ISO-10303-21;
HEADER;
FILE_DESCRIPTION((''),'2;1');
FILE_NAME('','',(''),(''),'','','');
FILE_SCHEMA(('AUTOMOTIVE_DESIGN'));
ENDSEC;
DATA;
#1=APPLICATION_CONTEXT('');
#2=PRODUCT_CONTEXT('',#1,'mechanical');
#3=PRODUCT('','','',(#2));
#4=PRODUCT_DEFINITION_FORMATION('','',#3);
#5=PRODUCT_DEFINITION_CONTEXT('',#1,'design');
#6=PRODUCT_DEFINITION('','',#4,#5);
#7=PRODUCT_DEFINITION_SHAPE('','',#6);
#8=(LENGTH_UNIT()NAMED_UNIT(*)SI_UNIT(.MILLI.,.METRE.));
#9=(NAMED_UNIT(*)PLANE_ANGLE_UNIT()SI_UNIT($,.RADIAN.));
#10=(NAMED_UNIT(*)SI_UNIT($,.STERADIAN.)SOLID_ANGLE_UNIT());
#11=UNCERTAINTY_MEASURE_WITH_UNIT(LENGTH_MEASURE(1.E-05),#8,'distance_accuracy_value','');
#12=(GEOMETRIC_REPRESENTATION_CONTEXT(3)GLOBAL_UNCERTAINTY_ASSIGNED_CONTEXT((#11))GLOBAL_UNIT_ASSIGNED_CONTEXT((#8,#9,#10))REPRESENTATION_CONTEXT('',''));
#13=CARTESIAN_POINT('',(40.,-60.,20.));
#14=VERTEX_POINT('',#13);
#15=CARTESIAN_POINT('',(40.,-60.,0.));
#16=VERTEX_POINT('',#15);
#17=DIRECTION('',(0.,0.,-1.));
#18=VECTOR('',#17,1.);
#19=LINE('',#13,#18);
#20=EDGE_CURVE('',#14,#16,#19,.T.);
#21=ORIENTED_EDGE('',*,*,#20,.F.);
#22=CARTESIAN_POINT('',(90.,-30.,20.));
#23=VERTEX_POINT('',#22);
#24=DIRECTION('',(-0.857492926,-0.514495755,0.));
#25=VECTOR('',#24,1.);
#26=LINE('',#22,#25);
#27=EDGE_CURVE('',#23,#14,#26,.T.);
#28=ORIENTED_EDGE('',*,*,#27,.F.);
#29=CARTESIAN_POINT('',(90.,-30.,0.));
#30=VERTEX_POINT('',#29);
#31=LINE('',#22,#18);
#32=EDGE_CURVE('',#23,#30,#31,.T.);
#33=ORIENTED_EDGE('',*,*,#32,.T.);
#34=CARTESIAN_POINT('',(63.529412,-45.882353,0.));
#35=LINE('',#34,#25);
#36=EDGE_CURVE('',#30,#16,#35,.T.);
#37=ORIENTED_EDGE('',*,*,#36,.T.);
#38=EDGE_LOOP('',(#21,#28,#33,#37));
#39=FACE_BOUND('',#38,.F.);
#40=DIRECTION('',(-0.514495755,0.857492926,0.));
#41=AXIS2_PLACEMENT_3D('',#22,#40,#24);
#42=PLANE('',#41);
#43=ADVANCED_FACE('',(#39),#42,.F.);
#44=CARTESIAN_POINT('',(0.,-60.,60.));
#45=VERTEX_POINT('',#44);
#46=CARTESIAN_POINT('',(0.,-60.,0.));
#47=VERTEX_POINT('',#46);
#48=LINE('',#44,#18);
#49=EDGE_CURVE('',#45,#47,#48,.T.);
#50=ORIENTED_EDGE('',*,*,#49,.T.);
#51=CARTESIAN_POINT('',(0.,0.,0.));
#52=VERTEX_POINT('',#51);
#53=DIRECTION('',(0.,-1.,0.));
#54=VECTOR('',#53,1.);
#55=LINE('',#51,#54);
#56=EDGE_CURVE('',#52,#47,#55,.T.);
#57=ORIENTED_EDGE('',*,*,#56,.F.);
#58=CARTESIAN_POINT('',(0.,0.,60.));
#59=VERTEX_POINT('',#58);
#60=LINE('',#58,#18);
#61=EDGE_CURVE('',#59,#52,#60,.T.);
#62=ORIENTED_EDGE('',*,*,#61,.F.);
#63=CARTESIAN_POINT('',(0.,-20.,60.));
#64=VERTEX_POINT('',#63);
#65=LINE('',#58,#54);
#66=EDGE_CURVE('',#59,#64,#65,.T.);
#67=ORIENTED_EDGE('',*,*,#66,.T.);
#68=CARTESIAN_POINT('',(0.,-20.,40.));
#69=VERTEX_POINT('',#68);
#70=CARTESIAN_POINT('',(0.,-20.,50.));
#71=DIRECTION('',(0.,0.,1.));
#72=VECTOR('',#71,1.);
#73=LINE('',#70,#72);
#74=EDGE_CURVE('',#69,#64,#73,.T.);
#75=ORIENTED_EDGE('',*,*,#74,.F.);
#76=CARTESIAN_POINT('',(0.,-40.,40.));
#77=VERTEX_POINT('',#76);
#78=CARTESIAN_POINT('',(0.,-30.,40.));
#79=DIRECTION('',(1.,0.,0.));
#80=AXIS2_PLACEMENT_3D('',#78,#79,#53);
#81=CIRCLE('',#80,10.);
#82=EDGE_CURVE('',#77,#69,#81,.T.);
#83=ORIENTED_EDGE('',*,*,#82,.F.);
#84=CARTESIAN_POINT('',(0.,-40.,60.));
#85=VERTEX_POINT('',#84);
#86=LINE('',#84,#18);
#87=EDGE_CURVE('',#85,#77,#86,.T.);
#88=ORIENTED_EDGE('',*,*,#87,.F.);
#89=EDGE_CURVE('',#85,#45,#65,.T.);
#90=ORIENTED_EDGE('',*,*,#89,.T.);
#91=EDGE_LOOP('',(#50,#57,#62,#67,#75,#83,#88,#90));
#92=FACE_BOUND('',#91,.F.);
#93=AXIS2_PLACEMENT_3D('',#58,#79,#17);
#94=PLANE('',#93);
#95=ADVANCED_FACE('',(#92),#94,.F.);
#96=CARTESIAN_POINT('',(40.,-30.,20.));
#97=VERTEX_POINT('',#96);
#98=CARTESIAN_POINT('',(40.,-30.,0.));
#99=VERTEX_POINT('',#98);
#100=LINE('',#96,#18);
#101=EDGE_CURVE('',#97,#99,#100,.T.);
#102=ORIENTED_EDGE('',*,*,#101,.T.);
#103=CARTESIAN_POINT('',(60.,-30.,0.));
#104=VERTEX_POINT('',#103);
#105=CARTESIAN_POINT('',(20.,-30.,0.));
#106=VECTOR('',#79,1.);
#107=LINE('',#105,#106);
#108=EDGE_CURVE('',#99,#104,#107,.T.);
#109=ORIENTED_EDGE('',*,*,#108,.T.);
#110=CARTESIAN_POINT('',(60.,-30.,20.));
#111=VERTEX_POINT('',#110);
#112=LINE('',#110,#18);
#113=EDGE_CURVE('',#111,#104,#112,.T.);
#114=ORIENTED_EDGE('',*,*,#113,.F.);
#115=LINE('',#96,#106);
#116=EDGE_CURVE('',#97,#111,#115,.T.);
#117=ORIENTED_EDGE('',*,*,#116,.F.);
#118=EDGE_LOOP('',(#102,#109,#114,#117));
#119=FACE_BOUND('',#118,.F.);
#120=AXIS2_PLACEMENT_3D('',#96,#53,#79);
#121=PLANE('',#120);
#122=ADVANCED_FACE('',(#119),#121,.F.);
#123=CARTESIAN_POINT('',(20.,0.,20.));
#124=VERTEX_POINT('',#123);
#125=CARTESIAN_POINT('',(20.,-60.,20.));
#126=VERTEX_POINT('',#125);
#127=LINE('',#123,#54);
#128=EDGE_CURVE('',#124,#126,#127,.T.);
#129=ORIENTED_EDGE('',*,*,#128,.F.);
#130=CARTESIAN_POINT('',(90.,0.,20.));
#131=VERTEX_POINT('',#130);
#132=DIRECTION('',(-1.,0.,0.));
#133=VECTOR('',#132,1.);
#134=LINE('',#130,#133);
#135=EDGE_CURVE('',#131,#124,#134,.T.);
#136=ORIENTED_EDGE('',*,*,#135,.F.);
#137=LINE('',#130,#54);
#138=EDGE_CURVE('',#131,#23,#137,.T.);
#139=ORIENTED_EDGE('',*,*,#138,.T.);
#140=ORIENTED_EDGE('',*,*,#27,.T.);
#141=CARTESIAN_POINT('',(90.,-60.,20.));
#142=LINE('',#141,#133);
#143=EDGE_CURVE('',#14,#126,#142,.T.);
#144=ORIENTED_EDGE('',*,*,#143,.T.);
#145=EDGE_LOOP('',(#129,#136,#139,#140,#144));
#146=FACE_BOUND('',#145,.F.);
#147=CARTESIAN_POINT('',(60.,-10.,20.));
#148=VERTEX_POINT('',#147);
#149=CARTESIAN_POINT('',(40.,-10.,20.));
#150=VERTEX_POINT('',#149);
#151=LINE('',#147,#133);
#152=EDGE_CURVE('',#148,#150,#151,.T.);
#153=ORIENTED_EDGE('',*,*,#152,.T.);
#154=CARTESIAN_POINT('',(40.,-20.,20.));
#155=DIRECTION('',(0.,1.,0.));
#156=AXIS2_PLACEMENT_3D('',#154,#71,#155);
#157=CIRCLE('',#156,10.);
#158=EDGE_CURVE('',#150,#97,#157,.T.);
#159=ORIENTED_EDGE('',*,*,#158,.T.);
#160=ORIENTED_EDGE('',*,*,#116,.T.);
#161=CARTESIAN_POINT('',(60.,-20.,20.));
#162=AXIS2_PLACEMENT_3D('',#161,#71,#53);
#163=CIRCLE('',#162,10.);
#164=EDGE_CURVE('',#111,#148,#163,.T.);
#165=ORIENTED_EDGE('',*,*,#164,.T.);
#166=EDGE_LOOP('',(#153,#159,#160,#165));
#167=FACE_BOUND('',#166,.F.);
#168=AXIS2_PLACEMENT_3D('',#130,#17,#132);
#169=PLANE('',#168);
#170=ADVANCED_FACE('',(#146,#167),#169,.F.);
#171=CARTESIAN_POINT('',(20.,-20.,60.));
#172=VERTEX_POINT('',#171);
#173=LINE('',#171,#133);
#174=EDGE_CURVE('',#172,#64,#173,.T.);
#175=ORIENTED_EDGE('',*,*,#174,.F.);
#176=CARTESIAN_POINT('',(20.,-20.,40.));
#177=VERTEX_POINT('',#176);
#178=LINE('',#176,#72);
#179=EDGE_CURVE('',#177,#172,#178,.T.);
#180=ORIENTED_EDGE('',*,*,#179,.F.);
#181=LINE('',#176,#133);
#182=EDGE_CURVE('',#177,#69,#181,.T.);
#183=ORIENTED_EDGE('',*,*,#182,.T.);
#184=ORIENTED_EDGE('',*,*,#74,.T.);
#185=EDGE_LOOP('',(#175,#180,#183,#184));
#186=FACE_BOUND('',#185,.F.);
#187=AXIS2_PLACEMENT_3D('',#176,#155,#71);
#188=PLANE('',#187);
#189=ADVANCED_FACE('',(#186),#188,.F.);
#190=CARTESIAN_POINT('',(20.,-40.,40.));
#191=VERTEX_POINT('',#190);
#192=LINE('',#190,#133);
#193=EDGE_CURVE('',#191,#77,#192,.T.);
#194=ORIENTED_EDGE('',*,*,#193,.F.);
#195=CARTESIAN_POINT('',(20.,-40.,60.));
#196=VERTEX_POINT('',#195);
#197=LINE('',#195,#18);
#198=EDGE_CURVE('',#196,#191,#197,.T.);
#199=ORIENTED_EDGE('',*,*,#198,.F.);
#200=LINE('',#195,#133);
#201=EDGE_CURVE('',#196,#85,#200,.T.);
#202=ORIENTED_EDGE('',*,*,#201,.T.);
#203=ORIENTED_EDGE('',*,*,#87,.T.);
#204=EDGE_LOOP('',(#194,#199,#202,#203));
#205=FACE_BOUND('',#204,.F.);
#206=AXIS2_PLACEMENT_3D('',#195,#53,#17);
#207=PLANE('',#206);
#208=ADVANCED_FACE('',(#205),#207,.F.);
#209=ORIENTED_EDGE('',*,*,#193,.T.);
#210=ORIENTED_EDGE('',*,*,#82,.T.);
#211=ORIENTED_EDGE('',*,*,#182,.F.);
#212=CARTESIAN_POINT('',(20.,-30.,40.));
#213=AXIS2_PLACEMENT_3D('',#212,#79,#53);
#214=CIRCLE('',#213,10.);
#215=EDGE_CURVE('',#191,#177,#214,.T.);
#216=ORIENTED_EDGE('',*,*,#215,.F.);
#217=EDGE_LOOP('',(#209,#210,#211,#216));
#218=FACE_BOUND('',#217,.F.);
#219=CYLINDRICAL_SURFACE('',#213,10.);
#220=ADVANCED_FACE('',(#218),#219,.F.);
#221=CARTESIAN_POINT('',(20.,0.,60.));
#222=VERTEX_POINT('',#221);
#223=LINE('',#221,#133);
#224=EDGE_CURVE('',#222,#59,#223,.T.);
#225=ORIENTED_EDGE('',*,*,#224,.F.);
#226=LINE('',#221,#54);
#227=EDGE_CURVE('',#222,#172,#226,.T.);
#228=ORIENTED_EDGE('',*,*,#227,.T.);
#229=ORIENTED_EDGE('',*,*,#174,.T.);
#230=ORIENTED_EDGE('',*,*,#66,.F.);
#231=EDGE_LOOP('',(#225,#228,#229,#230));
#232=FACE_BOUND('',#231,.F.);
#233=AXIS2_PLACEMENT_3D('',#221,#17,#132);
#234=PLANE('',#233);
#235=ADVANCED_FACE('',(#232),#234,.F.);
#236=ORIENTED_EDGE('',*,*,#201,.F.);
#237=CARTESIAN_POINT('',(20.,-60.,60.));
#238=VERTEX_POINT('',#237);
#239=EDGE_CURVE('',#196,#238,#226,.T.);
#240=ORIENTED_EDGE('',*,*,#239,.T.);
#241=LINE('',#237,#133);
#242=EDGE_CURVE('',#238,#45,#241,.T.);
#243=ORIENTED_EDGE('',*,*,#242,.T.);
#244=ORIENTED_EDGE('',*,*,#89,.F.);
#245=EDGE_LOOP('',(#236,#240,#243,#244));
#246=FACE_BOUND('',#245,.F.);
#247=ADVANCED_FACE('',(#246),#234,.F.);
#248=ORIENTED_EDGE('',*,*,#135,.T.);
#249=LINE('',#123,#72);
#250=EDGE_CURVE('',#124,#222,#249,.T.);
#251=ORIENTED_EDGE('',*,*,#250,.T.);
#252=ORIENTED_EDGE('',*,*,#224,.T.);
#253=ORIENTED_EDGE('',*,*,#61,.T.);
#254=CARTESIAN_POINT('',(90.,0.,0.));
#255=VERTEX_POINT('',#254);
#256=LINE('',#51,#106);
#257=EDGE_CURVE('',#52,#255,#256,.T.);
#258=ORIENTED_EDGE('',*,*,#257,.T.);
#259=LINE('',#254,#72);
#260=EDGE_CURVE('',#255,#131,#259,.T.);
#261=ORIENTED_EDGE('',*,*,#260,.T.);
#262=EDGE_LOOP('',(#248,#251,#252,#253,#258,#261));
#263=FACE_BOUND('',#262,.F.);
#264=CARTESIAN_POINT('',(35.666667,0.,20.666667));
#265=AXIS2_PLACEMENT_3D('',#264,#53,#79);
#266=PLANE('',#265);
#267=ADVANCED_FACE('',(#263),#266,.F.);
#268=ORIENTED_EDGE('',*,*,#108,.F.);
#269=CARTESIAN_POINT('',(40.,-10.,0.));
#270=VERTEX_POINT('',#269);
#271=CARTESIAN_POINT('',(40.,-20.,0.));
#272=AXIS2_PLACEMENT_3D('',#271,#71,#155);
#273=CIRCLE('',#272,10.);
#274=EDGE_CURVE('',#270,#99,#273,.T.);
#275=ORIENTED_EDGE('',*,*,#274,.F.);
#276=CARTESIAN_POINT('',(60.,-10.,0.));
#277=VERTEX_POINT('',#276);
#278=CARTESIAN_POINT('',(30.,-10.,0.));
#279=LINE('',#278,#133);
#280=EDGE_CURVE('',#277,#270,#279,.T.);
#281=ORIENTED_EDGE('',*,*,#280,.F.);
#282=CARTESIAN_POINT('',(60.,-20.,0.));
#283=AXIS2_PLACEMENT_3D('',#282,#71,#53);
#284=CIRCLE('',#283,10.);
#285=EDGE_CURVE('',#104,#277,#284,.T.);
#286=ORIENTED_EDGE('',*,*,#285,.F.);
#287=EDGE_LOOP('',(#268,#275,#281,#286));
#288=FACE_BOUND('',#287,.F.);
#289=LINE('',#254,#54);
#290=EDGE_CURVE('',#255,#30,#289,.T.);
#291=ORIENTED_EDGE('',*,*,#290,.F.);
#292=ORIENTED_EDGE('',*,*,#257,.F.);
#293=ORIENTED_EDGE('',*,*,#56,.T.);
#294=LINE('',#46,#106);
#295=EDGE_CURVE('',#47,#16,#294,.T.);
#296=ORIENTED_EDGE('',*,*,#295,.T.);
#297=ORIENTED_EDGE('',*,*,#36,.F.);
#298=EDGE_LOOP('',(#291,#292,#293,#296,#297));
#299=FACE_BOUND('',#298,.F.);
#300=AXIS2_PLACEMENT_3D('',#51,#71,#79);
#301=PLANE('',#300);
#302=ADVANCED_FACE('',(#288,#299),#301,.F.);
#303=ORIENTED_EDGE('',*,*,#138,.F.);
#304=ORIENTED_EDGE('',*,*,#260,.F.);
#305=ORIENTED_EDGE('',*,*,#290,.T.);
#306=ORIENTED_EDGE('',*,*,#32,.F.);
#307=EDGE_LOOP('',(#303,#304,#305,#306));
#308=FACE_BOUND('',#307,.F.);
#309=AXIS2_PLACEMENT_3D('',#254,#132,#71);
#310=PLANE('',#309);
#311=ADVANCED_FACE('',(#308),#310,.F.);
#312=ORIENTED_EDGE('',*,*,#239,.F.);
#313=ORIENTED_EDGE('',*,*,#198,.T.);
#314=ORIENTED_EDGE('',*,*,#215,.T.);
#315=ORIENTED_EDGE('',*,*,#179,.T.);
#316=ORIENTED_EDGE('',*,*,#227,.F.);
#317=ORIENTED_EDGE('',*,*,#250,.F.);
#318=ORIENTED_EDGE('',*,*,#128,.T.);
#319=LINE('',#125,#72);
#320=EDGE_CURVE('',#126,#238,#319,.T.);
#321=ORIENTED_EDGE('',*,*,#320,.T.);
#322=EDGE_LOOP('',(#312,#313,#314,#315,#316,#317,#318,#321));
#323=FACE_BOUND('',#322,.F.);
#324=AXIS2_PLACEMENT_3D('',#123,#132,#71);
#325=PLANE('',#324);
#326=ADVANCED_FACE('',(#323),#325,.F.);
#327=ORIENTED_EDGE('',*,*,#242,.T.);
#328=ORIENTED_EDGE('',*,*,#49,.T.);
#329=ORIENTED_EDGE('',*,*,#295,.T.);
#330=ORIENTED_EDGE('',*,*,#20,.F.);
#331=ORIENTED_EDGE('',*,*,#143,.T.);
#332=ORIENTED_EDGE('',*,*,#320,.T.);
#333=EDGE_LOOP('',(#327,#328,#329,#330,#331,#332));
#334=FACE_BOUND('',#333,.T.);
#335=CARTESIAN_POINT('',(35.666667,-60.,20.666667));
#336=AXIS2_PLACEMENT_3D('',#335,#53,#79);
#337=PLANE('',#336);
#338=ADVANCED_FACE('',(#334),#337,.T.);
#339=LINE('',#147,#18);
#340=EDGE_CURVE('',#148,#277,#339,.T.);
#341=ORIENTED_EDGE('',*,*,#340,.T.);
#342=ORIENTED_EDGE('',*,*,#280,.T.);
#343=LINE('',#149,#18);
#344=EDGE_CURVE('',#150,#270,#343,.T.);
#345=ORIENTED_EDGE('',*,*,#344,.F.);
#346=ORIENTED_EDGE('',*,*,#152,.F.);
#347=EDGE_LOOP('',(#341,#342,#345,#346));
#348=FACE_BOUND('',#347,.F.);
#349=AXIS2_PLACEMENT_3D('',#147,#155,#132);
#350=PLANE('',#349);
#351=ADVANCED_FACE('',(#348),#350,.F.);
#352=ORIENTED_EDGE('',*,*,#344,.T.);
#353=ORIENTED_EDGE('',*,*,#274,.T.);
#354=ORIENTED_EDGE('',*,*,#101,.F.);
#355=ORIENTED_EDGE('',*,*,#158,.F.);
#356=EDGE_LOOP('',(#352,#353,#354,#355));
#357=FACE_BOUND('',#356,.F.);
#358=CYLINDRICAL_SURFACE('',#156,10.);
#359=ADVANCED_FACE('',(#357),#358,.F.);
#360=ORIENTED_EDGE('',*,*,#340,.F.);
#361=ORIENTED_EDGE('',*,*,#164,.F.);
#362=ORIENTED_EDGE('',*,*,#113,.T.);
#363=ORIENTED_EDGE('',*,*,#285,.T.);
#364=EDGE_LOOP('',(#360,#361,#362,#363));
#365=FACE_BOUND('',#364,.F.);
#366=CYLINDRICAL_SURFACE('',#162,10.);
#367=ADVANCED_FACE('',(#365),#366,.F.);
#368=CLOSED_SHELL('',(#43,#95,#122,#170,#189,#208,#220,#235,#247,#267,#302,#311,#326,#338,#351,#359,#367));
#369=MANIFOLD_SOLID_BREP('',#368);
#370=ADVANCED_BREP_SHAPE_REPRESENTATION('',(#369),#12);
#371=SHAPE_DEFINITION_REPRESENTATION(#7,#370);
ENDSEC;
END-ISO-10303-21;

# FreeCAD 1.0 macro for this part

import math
import FreeCAD as App
import Part
import Sketcher
Q = App.Units.Quantity


def add_polygon(sketch, points):
    """Adds a closed chain of lines whose ends are joined by coincident constraints."""
    first, n = sketch.GeometryCount, len(points)
    for a, b in zip(points, points[1:] + points[:1]):
        sketch.addGeometry(Part.LineSegment(App.Vector(*a, 0), App.Vector(*b, 0)), False)
    for i in range(n):
        sketch.addConstraint(Sketcher.Constraint("Coincident", first + i, 2, first + (i + 1) % n, 1))

doc = App.newDocument("Part")
body = doc.addObject("PartDesign::Body", "Body")

# Sketch on XZ plane
sketch1 = body.newObject("Sketcher::SketchObject", "Sketch")
sketch1.AttachmentSupport = (doc.getObject("XZ_Plane"), [""])
sketch1.MapMode = "FlatFace"
add_polygon(sketch1, [(0, 60), (0, 0), (90, 0), (90, 20), (20, 20), (20, 60)])  # lines 0-5
sketch1.addConstraint(Sketcher.Constraint("Vertical", 0))
sketch1.addConstraint(Sketcher.Constraint("Horizontal", 1))
sketch1.addConstraint(Sketcher.Constraint("Vertical", 2))
sketch1.addConstraint(Sketcher.Constraint("Horizontal", 3))
sketch1.addConstraint(Sketcher.Constraint("Vertical", 4))
sketch1.addConstraint(Sketcher.Constraint("Horizontal", 5))
sketch1.addConstraint(Sketcher.Constraint("Coincident", 0, 2, -1, 1))
sketch1.addConstraint(Sketcher.Constraint("Equal", 5, 2))
sketch1.addConstraint(Sketcher.Constraint("DistanceX", 1, 1, 1, 2, Q("90 mm")))
sketch1.addConstraint(Sketcher.Constraint("DistanceX", 3, 2, 3, 1, Q("70 mm")))
sketch1.addConstraint(Sketcher.Constraint("DistanceY", 0, 2, 0, 1, Q("60 mm")))
pad1 = body.newObject("PartDesign::Pad", "Pad")
pad1.Profile = sketch1
pad1.Length = 60

# Sketch on YZ plane
sketch2 = body.newObject("Sketcher::SketchObject", "Sketch001")
sketch2.AttachmentSupport = (doc.getObject("YZ_Plane"), [""])
sketch2.MapMode = "FlatFace"
sketch2.AttachmentOffset = App.Placement(App.Vector(0, 0, 20), App.Rotation())
sketch2.addGeometry(Part.LineSegment(App.Vector(-20, 60, 0), App.Vector(-40, 60, 0)), False)
sketch2.addGeometry(Part.LineSegment(App.Vector(-40, 60, 0), App.Vector(-40, 40, 0)), False)
sketch2.addGeometry(Part.ArcOfCircle(Part.Circle(App.Vector(-30, 40, 0), App.Vector(0, 0, 1), 10), math.radians(180), math.radians(360)), False)
sketch2.addGeometry(Part.LineSegment(App.Vector(-20, 40, 0), App.Vector(-20, 60, 0)), False)
sketch2.addConstraint(Sketcher.Constraint("Coincident", 0, 2, 1, 1))
sketch2.addConstraint(Sketcher.Constraint("Tangent", 1, 2, 2, 1))
sketch2.addConstraint(Sketcher.Constraint("Tangent", 2, 2, 3, 1))
sketch2.addConstraint(Sketcher.Constraint("Coincident", 3, 2, 0, 1))
sketch2.addConstraint(Sketcher.Constraint("Horizontal", 0))
sketch2.addConstraint(Sketcher.Constraint("Vertical", 1))
sketch2.addConstraint(Sketcher.Constraint("Vertical", 3))
sketch2.addConstraint(Sketcher.Constraint("Equal", 0, 1))
sketch2.addConstraint(Sketcher.Constraint("Radius", 2, Q("10 mm")))
sketch2.addConstraint(Sketcher.Constraint("DistanceX", 2, 3, -1, 1, Q("30 mm")))
sketch2.addConstraint(Sketcher.Constraint("DistanceY", -1, 1, 2, 3, Q("40 mm")))
pocket1 = body.newObject("PartDesign::Pocket", "Pocket")
pocket1.Profile = sketch2
pocket1.Type = "ThroughAll"

# Sketch on XY plane
sketch3 = body.newObject("Sketcher::SketchObject", "Sketch002")
sketch3.AttachmentSupport = (doc.getObject("XY_Plane"), [""])
sketch3.MapMode = "FlatFace"
sketch3.AttachmentOffset = App.Placement(App.Vector(0, 0, 20), App.Rotation())
add_polygon(sketch3, [(90, -60), (90, -30), (40, -60)])  # lines 0-2
sketch3.addConstraint(Sketcher.Constraint("Vertical", 0))
sketch3.addConstraint(Sketcher.Constraint("Horizontal", 2))
sketch3.addConstraint(Sketcher.Constraint("DistanceX", 2, 1, 2, 2, Q("50 mm")))
sketch3.addConstraint(Sketcher.Constraint("DistanceY", 0, 1, 0, 2, Q("30 mm")))
sketch3.addConstraint(Sketcher.Constraint("DistanceX", -1, 1, 0, 2, Q("90 mm")))
sketch3.addConstraint(Sketcher.Constraint("DistanceY", 0, 2, -1, 1, Q("30 mm")))
pocket2 = body.newObject("PartDesign::Pocket", "Pocket001")
pocket2.Profile = sketch3
pocket2.Type = "ThroughAll"

# Sketch on XY plane
sketch4 = body.newObject("Sketcher::SketchObject", "Sketch003")
sketch4.AttachmentSupport = (doc.getObject("XY_Plane"), [""])
sketch4.MapMode = "FlatFace"
sketch4.AttachmentOffset = App.Placement(App.Vector(0, 0, 20), App.Rotation())
sketch4.addGeometry(Part.ArcOfCircle(Part.Circle(App.Vector(40, -20, 0), App.Vector(0, 0, 1), 10), math.radians(90), math.radians(270)), False)
sketch4.addGeometry(Part.LineSegment(App.Vector(40, -30, 0), App.Vector(60, -30, 0)), False)
sketch4.addGeometry(Part.ArcOfCircle(Part.Circle(App.Vector(60, -20, 0), App.Vector(0, 0, 1), 10), math.radians(-90), math.radians(90)), False)
sketch4.addGeometry(Part.LineSegment(App.Vector(60, -10, 0), App.Vector(40, -10, 0)), False)
sketch4.addConstraint(Sketcher.Constraint("Tangent", 0, 2, 1, 1))
sketch4.addConstraint(Sketcher.Constraint("Tangent", 1, 2, 2, 1))
sketch4.addConstraint(Sketcher.Constraint("Tangent", 2, 2, 3, 1))
sketch4.addConstraint(Sketcher.Constraint("Tangent", 3, 2, 0, 1))
sketch4.addConstraint(Sketcher.Constraint("Horizontal", 1))
sketch4.addConstraint(Sketcher.Constraint("Horizontal", 3))
sketch4.addConstraint(Sketcher.Constraint("Radius", 0, Q("10 mm")))
sketch4.addConstraint(Sketcher.Constraint("DistanceX", 1, 1, 1, 2, Q("20 mm")))
sketch4.addConstraint(Sketcher.Constraint("DistanceX", -1, 1, 0, 3, Q("40 mm")))
sketch4.addConstraint(Sketcher.Constraint("DistanceY", 0, 3, -1, 1, Q("20 mm")))
pocket3 = body.newObject("PartDesign::Pocket", "Pocket002")
pocket3.Profile = sketch4
pocket3.Type = "ThroughAll"

doc.recompute()
